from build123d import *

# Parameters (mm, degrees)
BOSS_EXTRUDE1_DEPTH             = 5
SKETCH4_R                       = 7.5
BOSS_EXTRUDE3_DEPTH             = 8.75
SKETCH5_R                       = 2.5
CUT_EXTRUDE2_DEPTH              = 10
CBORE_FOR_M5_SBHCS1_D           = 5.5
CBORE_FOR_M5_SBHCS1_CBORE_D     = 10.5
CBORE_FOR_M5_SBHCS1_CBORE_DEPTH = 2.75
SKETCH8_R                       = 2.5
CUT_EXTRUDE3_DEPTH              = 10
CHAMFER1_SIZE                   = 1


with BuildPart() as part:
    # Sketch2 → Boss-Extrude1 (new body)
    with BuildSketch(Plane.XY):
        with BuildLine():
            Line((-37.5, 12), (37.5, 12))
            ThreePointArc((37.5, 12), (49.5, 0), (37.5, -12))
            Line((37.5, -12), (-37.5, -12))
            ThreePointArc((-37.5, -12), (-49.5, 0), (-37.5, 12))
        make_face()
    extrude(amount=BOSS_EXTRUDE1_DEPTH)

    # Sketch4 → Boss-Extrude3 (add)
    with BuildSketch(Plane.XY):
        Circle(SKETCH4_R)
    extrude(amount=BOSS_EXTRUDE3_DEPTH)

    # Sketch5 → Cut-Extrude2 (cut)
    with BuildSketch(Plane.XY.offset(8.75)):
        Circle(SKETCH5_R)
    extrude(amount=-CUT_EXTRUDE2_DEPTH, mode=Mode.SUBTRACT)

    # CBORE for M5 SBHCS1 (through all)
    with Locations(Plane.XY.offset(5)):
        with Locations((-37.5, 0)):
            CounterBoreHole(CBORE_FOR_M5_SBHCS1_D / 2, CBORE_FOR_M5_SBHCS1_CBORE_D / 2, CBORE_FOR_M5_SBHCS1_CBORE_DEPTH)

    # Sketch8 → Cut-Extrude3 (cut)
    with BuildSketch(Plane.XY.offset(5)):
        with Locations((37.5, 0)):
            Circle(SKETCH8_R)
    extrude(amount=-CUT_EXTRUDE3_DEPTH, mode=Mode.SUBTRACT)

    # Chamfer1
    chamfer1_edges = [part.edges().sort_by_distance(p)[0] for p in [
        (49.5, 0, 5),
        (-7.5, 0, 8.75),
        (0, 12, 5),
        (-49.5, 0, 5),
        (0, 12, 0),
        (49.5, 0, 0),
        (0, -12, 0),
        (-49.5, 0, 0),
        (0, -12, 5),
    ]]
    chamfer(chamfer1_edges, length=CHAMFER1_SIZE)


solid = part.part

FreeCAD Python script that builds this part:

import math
import FreeCAD as App
import Part
import Sketcher
Q = App.Units.Quantity


def edges_at(feature, points):
    """Names of the edges that pass closest to the given points."""
    edges = feature.Shape.Edges
    near = lambda p: min(range(len(edges)), key=lambda i: edges[i].distToShape(Part.Vertex(*p))[0])
    return sorted({f"Edge{near(p) + 1}" for p in points})

doc = App.newDocument("Part")
body = doc.addObject("PartDesign::Body", "Body")

sketch1 = body.newObject("Sketcher::SketchObject", "Sketch")
sketch1.AttachmentSupport = (doc.getObject("XY_Plane"), [""])
sketch1.MapMode = "FlatFace"
sketch1.addGeometry(Part.LineSegment(App.Vector(38, 12, 0), App.Vector(-38, 12, 0)), False)
sketch1.addGeometry(Part.ArcOfCircle(Part.Circle(App.Vector(-38, 0, 0), App.Vector(0, 0, 1), 12), math.radians(90), math.radians(270)), False)
sketch1.addGeometry(Part.LineSegment(App.Vector(-38, -12, 0), App.Vector(38, -12, 0)), False)
sketch1.addGeometry(Part.ArcOfCircle(Part.Circle(App.Vector(38, 0, 0), App.Vector(0, 0, 1), 12), math.radians(-90), math.radians(90)), False)
sketch1.addConstraint(Sketcher.Constraint("Tangent", 0, 2, 1, 1))
sketch1.addConstraint(Sketcher.Constraint("Tangent", 1, 2, 2, 1))
sketch1.addConstraint(Sketcher.Constraint("Tangent", 2, 2, 3, 1))
sketch1.addConstraint(Sketcher.Constraint("Tangent", 3, 2, 0, 1))
sketch1.addConstraint(Sketcher.Constraint("Horizontal", 0))
sketch1.addConstraint(Sketcher.Constraint("Horizontal", 2))
sketch1.addConstraint(Sketcher.Constraint("Symmetric", 1, 3, 3, 3, -1, 1))
sketch1.addConstraint(Sketcher.Constraint("Radius", 1, Q("12 mm")))
sketch1.addConstraint(Sketcher.Constraint("DistanceX", 0, 2, 0, 1, Q("75 mm")))
pad1 = body.newObject("PartDesign::Pad", "Pad")
pad1.Profile = sketch1
pad1.Length = 5

sketch2 = body.newObject("Sketcher::SketchObject", "Sketch001")
sketch2.AttachmentSupport = (doc.getObject("XY_Plane"), [""])
sketch2.MapMode = "FlatFace"
sketch2.addGeometry(Part.Circle(App.Vector(0, 0, 0), App.Vector(0, 0, 1), 8), False)
sketch2.addConstraint(Sketcher.Constraint("Coincident", 0, 3, -1, 1))
sketch2.addConstraint(Sketcher.Constraint("Diameter", 0, Q("15 mm")))
pad2 = body.newObject("PartDesign::Pad", "Pad001")
pad2.Profile = sketch2
pad2.Length = 8.75

sketch3 = body.newObject("Sketcher::SketchObject", "Sketch002")
sketch3.AttachmentSupport = (doc.getObject("XY_Plane"), [""])
sketch3.MapMode = "FlatFace"
sketch3.AttachmentOffset = App.Placement(App.Vector(0, 0, 8.75), App.Rotation())
sketch3.addGeometry(Part.Circle(App.Vector(0, 0, 0), App.Vector(0, 0, 1), 2.5), False)
sketch3.addConstraint(Sketcher.Constraint("Coincident", 0, 3, -1, 1))
sketch3.addConstraint(Sketcher.Constraint("Diameter", 0, Q("5 mm")))
pocket1 = body.newObject("PartDesign::Pocket", "Pocket")
pocket1.Profile = sketch3
pocket1.Length = 10

sketch4 = body.newObject("Sketcher::SketchObject", "Sketch003")
sketch4.AttachmentSupport = (doc.getObject("XY_Plane"), [""])
sketch4.MapMode = "FlatFace"
sketch4.AttachmentOffset = App.Placement(App.Vector(0, 0, 5), App.Rotation())
sketch4.addGeometry(Part.Circle(App.Vector(-37.5, 0, 0), App.Vector(0, 0, 1), 2.8), False)
sketch4.addConstraint(Sketcher.Constraint("PointOnObject", 0, 3, -1))
sketch4.addConstraint(Sketcher.Constraint("Diameter", 0, Q("5.5 mm")))
sketch4.addConstraint(Sketcher.Constraint("DistanceX", 0, 3, -1, 1, Q("37.5 mm")))
doc.recompute()
hole = body.newObject("PartDesign::Hole", "Hole")
hole.Profile = sketch4
hole.ThreadType = "None"
hole.Diameter = 5.5
hole.DepthType = "ThroughAll"
hole.HoleCutType = "Counterbore"
hole.HoleCutDiameter = 10.5
hole.HoleCutDepth = 2.75

sketch5 = body.newObject("Sketcher::SketchObject", "Sketch004")
sketch5.AttachmentSupport = (doc.getObject("XY_Plane"), [""])
sketch5.MapMode = "FlatFace"
sketch5.AttachmentOffset = App.Placement(App.Vector(0, 0, 5), App.Rotation())
sketch5.addGeometry(Part.Circle(App.Vector(37.5, 0, 0), App.Vector(0, 0, 1), 2.5), False)
sketch5.addConstraint(Sketcher.Constraint("PointOnObject", 0, 3, -1))
sketch5.addConstraint(Sketcher.Constraint("Diameter", 0, Q("5 mm")))
sketch5.addConstraint(Sketcher.Constraint("DistanceX", -1, 1, 0, 3, Q("37.5 mm")))
pocket2 = body.newObject("PartDesign::Pocket", "Pocket001")
pocket2.Profile = sketch5
pocket2.Length = 10
doc.recompute()

chamfer = body.newObject("PartDesign::Chamfer", "Chamfer")
chamfer.Base = (pocket2, edges_at(pocket2, [
    (49.5, 0, 5),
    (-7.5, 0, 8.75),
    (0, 12, 5),
    (-49.5, 0, 5),
    (0, 12, 0),
    (49.5, 0, 0),
    (0, -12, 0),
    (-49.5, 0, 0),
    (0, -12, 5),
]))
chamfer.Size = 1

doc.recompute()
